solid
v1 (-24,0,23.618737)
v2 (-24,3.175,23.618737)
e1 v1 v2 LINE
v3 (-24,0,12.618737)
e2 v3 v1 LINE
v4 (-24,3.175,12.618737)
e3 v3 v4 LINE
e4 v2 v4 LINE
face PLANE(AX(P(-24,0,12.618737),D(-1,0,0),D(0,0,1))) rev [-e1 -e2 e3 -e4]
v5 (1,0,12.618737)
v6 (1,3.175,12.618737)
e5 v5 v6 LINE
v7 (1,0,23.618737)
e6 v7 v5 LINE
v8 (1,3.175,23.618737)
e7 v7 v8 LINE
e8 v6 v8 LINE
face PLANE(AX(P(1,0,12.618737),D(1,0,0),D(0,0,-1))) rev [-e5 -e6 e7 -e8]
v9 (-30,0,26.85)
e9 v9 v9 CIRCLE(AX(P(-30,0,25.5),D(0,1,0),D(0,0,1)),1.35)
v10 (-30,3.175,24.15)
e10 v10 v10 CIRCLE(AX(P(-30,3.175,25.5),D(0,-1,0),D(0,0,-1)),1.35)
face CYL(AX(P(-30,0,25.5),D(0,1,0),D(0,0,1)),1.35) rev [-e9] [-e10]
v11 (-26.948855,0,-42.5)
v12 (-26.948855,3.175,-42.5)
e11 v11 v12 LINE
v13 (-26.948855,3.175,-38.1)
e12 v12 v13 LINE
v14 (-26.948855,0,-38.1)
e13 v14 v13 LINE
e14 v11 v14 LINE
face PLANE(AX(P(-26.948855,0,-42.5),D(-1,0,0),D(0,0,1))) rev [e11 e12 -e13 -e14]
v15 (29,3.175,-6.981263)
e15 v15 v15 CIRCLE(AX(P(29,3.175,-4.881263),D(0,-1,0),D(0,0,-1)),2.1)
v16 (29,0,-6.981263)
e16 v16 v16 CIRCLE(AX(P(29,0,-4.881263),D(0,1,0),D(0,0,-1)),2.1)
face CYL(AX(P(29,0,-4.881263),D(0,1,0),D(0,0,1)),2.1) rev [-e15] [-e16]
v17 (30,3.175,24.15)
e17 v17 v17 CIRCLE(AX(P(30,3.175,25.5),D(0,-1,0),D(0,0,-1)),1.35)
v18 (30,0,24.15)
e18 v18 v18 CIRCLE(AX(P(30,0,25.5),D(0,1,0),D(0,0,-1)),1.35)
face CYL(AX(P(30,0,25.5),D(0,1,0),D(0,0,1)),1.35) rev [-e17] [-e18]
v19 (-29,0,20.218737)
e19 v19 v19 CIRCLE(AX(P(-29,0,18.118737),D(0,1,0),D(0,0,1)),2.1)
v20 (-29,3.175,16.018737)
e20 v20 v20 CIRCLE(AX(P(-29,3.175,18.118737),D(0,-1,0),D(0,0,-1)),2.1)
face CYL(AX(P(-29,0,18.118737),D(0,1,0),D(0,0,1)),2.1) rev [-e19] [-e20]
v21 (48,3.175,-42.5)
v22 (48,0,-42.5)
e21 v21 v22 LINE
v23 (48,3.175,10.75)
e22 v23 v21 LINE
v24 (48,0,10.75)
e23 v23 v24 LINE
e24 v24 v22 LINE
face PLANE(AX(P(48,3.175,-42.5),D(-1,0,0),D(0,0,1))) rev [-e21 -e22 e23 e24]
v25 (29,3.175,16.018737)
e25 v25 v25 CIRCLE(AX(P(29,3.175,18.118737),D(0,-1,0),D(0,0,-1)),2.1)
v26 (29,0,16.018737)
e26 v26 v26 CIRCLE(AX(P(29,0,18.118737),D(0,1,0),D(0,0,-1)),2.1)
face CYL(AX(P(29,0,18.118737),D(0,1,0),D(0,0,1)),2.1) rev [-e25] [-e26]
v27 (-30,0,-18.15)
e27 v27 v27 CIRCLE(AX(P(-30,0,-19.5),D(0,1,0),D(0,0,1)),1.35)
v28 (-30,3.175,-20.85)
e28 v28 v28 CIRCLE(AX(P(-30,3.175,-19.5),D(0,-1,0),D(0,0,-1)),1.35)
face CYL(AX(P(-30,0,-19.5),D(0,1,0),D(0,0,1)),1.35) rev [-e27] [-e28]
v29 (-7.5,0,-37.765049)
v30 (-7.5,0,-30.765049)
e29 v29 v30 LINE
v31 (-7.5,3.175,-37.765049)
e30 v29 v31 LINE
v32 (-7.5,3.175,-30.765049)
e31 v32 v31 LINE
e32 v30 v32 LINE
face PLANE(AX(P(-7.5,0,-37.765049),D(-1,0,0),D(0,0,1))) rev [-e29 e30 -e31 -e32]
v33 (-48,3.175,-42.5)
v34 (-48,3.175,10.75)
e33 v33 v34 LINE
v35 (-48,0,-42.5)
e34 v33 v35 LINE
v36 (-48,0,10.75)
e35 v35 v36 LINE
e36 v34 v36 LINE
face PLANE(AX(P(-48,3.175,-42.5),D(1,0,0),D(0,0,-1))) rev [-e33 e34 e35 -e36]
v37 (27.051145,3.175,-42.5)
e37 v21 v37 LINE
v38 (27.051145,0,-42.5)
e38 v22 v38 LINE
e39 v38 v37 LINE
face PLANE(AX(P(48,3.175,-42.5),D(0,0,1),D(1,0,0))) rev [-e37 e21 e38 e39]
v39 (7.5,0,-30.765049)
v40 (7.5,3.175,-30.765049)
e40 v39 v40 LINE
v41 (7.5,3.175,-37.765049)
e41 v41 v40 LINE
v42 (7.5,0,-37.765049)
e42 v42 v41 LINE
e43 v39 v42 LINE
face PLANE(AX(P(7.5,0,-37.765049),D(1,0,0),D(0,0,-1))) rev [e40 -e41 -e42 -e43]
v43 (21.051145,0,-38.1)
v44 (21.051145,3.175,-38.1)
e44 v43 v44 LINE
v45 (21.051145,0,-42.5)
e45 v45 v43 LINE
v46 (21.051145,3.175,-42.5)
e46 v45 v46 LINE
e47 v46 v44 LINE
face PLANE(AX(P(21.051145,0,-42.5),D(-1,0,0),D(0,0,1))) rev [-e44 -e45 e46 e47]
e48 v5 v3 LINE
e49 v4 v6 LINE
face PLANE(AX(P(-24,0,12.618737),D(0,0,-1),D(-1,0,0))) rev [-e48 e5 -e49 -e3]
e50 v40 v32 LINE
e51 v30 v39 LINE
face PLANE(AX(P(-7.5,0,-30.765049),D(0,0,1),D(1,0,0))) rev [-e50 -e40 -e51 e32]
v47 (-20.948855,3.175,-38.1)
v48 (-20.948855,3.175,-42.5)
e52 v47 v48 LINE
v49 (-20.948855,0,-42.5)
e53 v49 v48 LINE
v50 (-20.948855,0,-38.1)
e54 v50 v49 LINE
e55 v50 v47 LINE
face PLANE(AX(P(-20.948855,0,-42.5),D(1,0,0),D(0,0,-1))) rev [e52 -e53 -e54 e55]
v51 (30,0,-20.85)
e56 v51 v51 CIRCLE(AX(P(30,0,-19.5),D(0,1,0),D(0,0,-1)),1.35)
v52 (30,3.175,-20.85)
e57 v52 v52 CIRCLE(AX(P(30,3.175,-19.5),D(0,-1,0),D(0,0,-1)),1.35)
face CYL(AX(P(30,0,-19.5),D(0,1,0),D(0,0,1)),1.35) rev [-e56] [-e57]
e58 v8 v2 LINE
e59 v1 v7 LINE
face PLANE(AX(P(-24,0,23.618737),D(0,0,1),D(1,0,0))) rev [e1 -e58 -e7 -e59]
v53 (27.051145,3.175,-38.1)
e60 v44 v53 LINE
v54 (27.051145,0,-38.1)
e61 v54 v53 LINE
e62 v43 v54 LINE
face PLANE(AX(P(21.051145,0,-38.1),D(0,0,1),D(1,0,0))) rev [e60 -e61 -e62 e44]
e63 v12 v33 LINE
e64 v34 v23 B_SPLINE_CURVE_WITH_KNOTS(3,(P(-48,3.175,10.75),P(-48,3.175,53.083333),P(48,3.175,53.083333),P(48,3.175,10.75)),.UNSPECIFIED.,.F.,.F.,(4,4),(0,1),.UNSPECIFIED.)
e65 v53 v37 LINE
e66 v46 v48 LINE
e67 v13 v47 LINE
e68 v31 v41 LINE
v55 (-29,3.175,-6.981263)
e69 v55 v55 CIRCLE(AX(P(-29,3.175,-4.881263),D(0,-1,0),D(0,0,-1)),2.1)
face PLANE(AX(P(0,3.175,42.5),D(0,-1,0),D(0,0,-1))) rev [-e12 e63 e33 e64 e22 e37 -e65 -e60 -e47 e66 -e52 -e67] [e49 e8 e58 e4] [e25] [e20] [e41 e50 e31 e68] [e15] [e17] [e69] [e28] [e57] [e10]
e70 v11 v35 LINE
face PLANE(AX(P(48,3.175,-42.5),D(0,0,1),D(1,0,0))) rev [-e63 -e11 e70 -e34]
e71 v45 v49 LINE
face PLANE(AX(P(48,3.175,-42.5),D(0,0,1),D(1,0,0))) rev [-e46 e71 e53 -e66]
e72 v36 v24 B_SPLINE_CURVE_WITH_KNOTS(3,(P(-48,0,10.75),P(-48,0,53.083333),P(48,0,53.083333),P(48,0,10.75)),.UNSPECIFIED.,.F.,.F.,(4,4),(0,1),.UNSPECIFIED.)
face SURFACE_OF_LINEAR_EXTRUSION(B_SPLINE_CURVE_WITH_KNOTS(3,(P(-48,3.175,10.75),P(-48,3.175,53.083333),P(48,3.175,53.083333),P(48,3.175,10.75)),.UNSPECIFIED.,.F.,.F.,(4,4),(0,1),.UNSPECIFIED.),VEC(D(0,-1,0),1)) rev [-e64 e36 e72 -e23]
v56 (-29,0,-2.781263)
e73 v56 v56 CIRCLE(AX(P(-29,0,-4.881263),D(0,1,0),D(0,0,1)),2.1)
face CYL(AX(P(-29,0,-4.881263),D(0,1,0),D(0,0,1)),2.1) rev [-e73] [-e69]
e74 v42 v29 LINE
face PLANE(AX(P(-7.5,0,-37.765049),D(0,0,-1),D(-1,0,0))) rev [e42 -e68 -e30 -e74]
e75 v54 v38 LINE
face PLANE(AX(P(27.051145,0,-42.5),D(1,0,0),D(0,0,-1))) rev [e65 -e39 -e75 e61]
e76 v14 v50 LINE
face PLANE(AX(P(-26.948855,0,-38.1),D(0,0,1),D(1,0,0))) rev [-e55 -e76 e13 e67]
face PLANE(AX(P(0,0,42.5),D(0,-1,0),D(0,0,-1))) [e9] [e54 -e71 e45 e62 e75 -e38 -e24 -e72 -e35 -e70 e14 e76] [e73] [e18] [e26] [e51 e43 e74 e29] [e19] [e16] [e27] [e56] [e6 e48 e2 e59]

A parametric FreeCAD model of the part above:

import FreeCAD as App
import Part
import Sketcher

doc = App.newDocument("Part")
params = doc.addObject("Spreadsheet::Sheet", "Params")
for row, (alias, value) in enumerate([
    ("sketch1_height", "53.25 mm"),
    ("pad1_length", "3.175 mm"),
    ("sketch2_diameter", "2.7 mm"),
    ("sketch2_diameter2", "4.2 mm"),
    ("sketch2_width", "15 mm"),
    ("sketch2_width2", "25 mm"),
    ("sketch2_height", "7 mm"),
    ("sketch3_width", "6 mm"),
    ("sketch3_height", "4.4 mm"),
], start=1):
    params.set(f"A{row}", alias)
    params.set(f"B{row}", "=" + value)
    params.setAlias(f"B{row}", alias)

body = doc.addObject("PartDesign::Body", "Body")

# Sketch on XZ plane
sketch1 = body.newObject("Sketcher::SketchObject", "Sketch")
sketch1.AttachmentSupport = (doc.getObject("XZ_Plane"), [""])
sketch1.MapMode = "FlatFace"
sketch1.addGeometry(Part.LineSegment(App.Vector(48, -42.5, 0), App.Vector(-48, -42.5, 0)), False)
sketch1.addGeometry(Part.LineSegment(App.Vector(-48, -42.5, 0), App.Vector(-48, 10.75, 0)), False)
sketch1.addGeometry(Part.BSplineCurve([App.Vector(-48, 10.75, 0), App.Vector(-48, 53.083333, 0), App.Vector(48, 53.083333, 0), App.Vector(48, 10.75, 0)], [4, 4], [0, 1], False, 3, [1, 1, 1, 1], False), False)
sketch1.addGeometry(Part.LineSegment(App.Vector(48, 10.75, 0), App.Vector(48, -42.5, 0)), False)
sketch1.addConstraint(Sketcher.Constraint("Block", 2))
sketch1.addConstraint(Sketcher.Constraint("Coincident", 0, 2, 1, 1))
sketch1.addConstraint(Sketcher.Constraint("Coincident", 1, 2, 2, 1))
sketch1.addConstraint(Sketcher.Constraint("Coincident", 2, 2, 3, 1))
sketch1.addConstraint(Sketcher.Constraint("Coincident", 3, 2, 0, 1))
sketch1.addConstraint(Sketcher.Constraint("Horizontal", 0))
sketch1.addConstraint(Sketcher.Constraint("Vertical", 1))
sketch1.addConstraint(Sketcher.Constraint("Vertical", 3))
sketch1.addConstraint(Sketcher.Constraint("DistanceY", 1, 1, 1, 2, 53.25))
sketch1.setExpression("Constraints[8]", "Params.sketch1_height")
pad1 = body.newObject("PartDesign::Pad", "Pad")
pad1.Profile = sketch1
pad1.setExpression("Length", "Params.pad1_length")
pad1.Reversed = True

# Sketch on XZ plane
sketch2 = body.newObject("Sketcher::SketchObject", "Sketch001")
sketch2.AttachmentSupport = (doc.getObject("XZ_Plane"), [""])
sketch2.MapMode = "FlatFace"
sketch2.AttachmentOffset = App.Placement(App.Vector(0, 0, -3.175), App.Rotation())
sketch2.addGeometry(Part.Circle(App.Vector(-30, -19.5, 0), App.Vector(0, 0, 1), 1.4), False)
sketch2.addGeometry(Part.Circle(App.Vector(-30, 25.5, 0), App.Vector(0, 0, 1), 1.4), False)
sketch2.addGeometry(Part.Circle(App.Vector(30, 25.5, 0), App.Vector(0, 0, 1), 1.4), False)
sketch2.addGeometry(Part.Circle(App.Vector(30, -19.5, 0), App.Vector(0, 0, 1), 1.4), False)
sketch2.addGeometry(Part.Circle(App.Vector(-29, -4.9, 0), App.Vector(0, 0, 1), 2.1), False)
sketch2.addGeometry(Part.Circle(App.Vector(-29, 18.1, 0), App.Vector(0, 0, 1), 2.1), False)
sketch2.addGeometry(Part.Circle(App.Vector(29, 18.1, 0), App.Vector(0, 0, 1), 2.1), False)
sketch2.addGeometry(Part.Circle(App.Vector(29, -4.9, 0), App.Vector(0, 0, 1), 2.1), False)
sketch2.addGeometry(Part.LineSegment(App.Vector(-7.5, -37.8, 0), App.Vector(-7.5, -30.8, 0)), False)
sketch2.addGeometry(Part.LineSegment(App.Vector(-7.5, -30.8, 0), App.Vector(7.5, -30.8, 0)), False)
sketch2.addGeometry(Part.LineSegment(App.Vector(7.5, -30.8, 0), App.Vector(7.5, -37.8, 0)), False)
sketch2.addGeometry(Part.LineSegment(App.Vector(7.5, -37.8, 0), App.Vector(-7.5, -37.8, 0)), False)
sketch2.addGeometry(Part.LineSegment(App.Vector(-24, 12.6, 0), App.Vector(-24, 23.6, 0)), False)
sketch2.addGeometry(Part.LineSegment(App.Vector(-24, 23.6, 0), App.Vector(1, 23.6, 0)), False)
sketch2.addGeometry(Part.LineSegment(App.Vector(1, 23.6, 0), App.Vector(1, 12.6, 0)), False)
sketch2.addGeometry(Part.LineSegment(App.Vector(1, 12.6, 0), App.Vector(-24, 12.6, 0)), False)
sketch2.addConstraint(Sketcher.Constraint("Coincident", 8, 2, 9, 1))
sketch2.addConstraint(Sketcher.Constraint("Coincident", 9, 2, 10, 1))
sketch2.addConstraint(Sketcher.Constraint("Coincident", 10, 2, 11, 1))
sketch2.addConstraint(Sketcher.Constraint("Coincident", 11, 2, 8, 1))
sketch2.addConstraint(Sketcher.Constraint("Coincident", 12, 2, 13, 1))
sketch2.addConstraint(Sketcher.Constraint("Coincident", 13, 2, 14, 1))
sketch2.addConstraint(Sketcher.Constraint("Coincident", 14, 2, 15, 1))
sketch2.addConstraint(Sketcher.Constraint("Coincident", 15, 2, 12, 1))
sketch2.addConstraint(Sketcher.Constraint("Vertical", 8))
sketch2.addConstraint(Sketcher.Constraint("Horizontal", 9))
sketch2.addConstraint(Sketcher.Constraint("Vertical", 10))
sketch2.addConstraint(Sketcher.Constraint("Horizontal", 11))
sketch2.addConstraint(Sketcher.Constraint("Vertical", 12))
sketch2.addConstraint(Sketcher.Constraint("Horizontal", 13))
sketch2.addConstraint(Sketcher.Constraint("Vertical", 14))
sketch2.addConstraint(Sketcher.Constraint("Horizontal", 15))
sketch2.addConstraint(Sketcher.Constraint("Equal", 0, 1))
sketch2.addConstraint(Sketcher.Constraint("Equal", 1, 2))
sketch2.addConstraint(Sketcher.Constraint("Equal", 2, 3))
sketch2.addConstraint(Sketcher.Constraint("Equal", 4, 5))
sketch2.addConstraint(Sketcher.Constraint("Equal", 5, 6))
sketch2.addConstraint(Sketcher.Constraint("Equal", 6, 7))
sketch2.addConstraint(Sketcher.Constraint("Symmetric", 1, 3, 2, 3, -2))
sketch2.addConstraint(Sketcher.Constraint("Symmetric", 0, 3, 3, 3, -2))
sketch2.addConstraint(Sketcher.Constraint("Symmetric", 5, 3, 6, 3, -2))
sketch2.addConstraint(Sketcher.Constraint("Symmetric", 4, 3, 7, 3, -2))
sketch2.addConstraint(Sketcher.Constraint("Vertical", 0, 3, 1, 3))
sketch2.addConstraint(Sketcher.Constraint("Vertical", 4, 3, 5, 3))
sketch2.addConstraint(Sketcher.Constraint("Diameter", 0, 2.7))
sketch2.addConstraint(Sketcher.Constraint("Diameter", 4, 4.2))
sketch2.addConstraint(Sketcher.Constraint("DistanceX", 9, 1, 9, 2, 15.0))
sketch2.addConstraint(Sketcher.Constraint("DistanceX", 13, 1, 13, 2, 25.0))
sketch2.addConstraint(Sketcher.Constraint("DistanceY", 8, 1, 8, 2, 7.0))
sketch2.addConstraint(Sketcher.Constraint("DistanceY", 12, 1, 12, 2, 11.0))
sketch2.addConstraint(Sketcher.Constraint("DistanceX", 0, 3, -1, 1, 30.0))
sketch2.addConstraint(Sketcher.Constraint("DistanceX", 4, 3, -1, 1, 29.0))
sketch2.addConstraint(Sketcher.Constraint("DistanceX", 12, 2, -1, 1, 24.0))
sketch2.addConstraint(Sketcher.Constraint("DistanceY", 0, 3, 1, 3, 45.0))
sketch2.addConstraint(Sketcher.Constraint("DistanceY", 4, 3, 5, 3, 23.0))
sketch2.addConstraint(Sketcher.Constraint("DistanceY", 0, 3, -1, 1, 19.5))
sketch2.addConstraint(Sketcher.Constraint("DistanceX", 8, 2, -1, 1, 7.5))
sketch2.addConstraint(Sketcher.Constraint("DistanceY", 5, 3, 12, 2, 5.5))
sketch2.addConstraint(Sketcher.Constraint("DistanceY", 8, 2, -1, 1, 30.765049))
sketch2.addConstraint(Sketcher.Constraint("DistanceY", 4, 3, -1, 1, 4.881263))
sketch2.setExpression("Constraints[28]", "Params.sketch2_diameter")
sketch2.setExpression("Constraints[29]", "Params.sketch2_diameter2")
sketch2.setExpression("Constraints[30]", "Params.sketch2_width")
sketch2.setExpression("Constraints[31]", "Params.sketch2_width2")
sketch2.setExpression("Constraints[32]", "Params.sketch2_height")
pocket1 = body.newObject("PartDesign::Pocket", "Pocket")
pocket1.Profile = sketch2
pocket1.Type = "ThroughAll"
pocket1.Midplane = True

# Sketch on XZ plane
sketch3 = body.newObject("Sketcher::SketchObject", "Sketch002")
sketch3.AttachmentSupport = (doc.getObject("XZ_Plane"), [""])
sketch3.MapMode = "FlatFace"
sketch3.AttachmentOffset = App.Placement(App.Vector(0, 0, -3.175), App.Rotation())
sketch3.addGeometry(Part.LineSegment(App.Vector(21.1, -42.5, 0), App.Vector(21.1, -38.1, 0)), False)
sketch3.addGeometry(Part.LineSegment(App.Vector(21.1, -38.1, 0), App.Vector(27.1, -38.1, 0)), False)
sketch3.addGeometry(Part.LineSegment(App.Vector(27.1, -38.1, 0), App.Vector(27.1, -42.5, 0)), False)
sketch3.addGeometry(Part.LineSegment(App.Vector(27.1, -42.5, 0), App.Vector(21.1, -42.5, 0)), False)
sketch3.addGeometry(Part.LineSegment(App.Vector(-26.9, -42.5, 0), App.Vector(-26.9, -38.1, 0)), False)
sketch3.addGeometry(Part.LineSegment(App.Vector(-26.9, -38.1, 0), App.Vector(-20.9, -38.1, 0)), False)
sketch3.addGeometry(Part.LineSegment(App.Vector(-20.9, -38.1, 0), App.Vector(-20.9, -42.5, 0)), False)
sketch3.addGeometry(Part.LineSegment(App.Vector(-20.9, -42.5, 0), App.Vector(-26.9, -42.5, 0)), False)
sketch3.addConstraint(Sketcher.Constraint("Coincident", 0, 2, 1, 1))
sketch3.addConstraint(Sketcher.Constraint("Coincident", 1, 2, 2, 1))
sketch3.addConstraint(Sketcher.Constraint("Coincident", 2, 2, 3, 1))
sketch3.addConstraint(Sketcher.Constraint("Coincident", 3, 2, 0, 1))
sketch3.addConstraint(Sketcher.Constraint("Coincident", 4, 2, 5, 1))
sketch3.addConstraint(Sketcher.Constraint("Coincident", 5, 2, 6, 1))
sketch3.addConstraint(Sketcher.Constraint("Coincident", 6, 2, 7, 1))
sketch3.addConstraint(Sketcher.Constraint("Coincident", 7, 2, 4, 1))
sketch3.addConstraint(Sketcher.Constraint("Vertical", 0))
sketch3.addConstraint(Sketcher.Constraint("Horizontal", 1))
sketch3.addConstraint(Sketcher.Constraint("Vertical", 2))
sketch3.addConstraint(Sketcher.Constraint("Horizontal", 3))
sketch3.addConstraint(Sketcher.Constraint("Vertical", 4))
sketch3.addConstraint(Sketcher.Constraint("Horizontal", 5))
sketch3.addConstraint(Sketcher.Constraint("Vertical", 6))
sketch3.addConstraint(Sketcher.Constraint("Horizontal", 7))
sketch3.addConstraint(Sketcher.Constraint("Horizontal", 1, 2, 4, 2))
sketch3.addConstraint(Sketcher.Constraint("Horizontal", 3, 2, 6, 2))
sketch3.addConstraint(Sketcher.Constraint("Equal", 3, 5))
sketch3.addConstraint(Sketcher.Constraint("DistanceX", 1, 1, 1, 2, 6.0))
sketch3.addConstraint(Sketcher.Constraint("DistanceY", 0, 1, 0, 2, 4.4))
sketch3.addConstraint(Sketcher.Constraint("DistanceX", 4, 2, 0, 2, 48.0))
sketch3.addConstraint(Sketcher.Constraint("DistanceY", 0, 2, -1, 1, 38.1))
sketch3.addConstraint(Sketcher.Constraint("DistanceX", -1, 1, 0, 2, 21.051145))
sketch3.setExpression("Constraints[19]", "Params.sketch3_width")
sketch3.setExpression("Constraints[20]", "Params.sketch3_height")
pocket2 = body.newObject("PartDesign::Pocket", "Pocket001")
pocket2.Profile = sketch3
pocket2.Type = "ThroughAll"
pocket2.Reversed = True

doc.recompute()
